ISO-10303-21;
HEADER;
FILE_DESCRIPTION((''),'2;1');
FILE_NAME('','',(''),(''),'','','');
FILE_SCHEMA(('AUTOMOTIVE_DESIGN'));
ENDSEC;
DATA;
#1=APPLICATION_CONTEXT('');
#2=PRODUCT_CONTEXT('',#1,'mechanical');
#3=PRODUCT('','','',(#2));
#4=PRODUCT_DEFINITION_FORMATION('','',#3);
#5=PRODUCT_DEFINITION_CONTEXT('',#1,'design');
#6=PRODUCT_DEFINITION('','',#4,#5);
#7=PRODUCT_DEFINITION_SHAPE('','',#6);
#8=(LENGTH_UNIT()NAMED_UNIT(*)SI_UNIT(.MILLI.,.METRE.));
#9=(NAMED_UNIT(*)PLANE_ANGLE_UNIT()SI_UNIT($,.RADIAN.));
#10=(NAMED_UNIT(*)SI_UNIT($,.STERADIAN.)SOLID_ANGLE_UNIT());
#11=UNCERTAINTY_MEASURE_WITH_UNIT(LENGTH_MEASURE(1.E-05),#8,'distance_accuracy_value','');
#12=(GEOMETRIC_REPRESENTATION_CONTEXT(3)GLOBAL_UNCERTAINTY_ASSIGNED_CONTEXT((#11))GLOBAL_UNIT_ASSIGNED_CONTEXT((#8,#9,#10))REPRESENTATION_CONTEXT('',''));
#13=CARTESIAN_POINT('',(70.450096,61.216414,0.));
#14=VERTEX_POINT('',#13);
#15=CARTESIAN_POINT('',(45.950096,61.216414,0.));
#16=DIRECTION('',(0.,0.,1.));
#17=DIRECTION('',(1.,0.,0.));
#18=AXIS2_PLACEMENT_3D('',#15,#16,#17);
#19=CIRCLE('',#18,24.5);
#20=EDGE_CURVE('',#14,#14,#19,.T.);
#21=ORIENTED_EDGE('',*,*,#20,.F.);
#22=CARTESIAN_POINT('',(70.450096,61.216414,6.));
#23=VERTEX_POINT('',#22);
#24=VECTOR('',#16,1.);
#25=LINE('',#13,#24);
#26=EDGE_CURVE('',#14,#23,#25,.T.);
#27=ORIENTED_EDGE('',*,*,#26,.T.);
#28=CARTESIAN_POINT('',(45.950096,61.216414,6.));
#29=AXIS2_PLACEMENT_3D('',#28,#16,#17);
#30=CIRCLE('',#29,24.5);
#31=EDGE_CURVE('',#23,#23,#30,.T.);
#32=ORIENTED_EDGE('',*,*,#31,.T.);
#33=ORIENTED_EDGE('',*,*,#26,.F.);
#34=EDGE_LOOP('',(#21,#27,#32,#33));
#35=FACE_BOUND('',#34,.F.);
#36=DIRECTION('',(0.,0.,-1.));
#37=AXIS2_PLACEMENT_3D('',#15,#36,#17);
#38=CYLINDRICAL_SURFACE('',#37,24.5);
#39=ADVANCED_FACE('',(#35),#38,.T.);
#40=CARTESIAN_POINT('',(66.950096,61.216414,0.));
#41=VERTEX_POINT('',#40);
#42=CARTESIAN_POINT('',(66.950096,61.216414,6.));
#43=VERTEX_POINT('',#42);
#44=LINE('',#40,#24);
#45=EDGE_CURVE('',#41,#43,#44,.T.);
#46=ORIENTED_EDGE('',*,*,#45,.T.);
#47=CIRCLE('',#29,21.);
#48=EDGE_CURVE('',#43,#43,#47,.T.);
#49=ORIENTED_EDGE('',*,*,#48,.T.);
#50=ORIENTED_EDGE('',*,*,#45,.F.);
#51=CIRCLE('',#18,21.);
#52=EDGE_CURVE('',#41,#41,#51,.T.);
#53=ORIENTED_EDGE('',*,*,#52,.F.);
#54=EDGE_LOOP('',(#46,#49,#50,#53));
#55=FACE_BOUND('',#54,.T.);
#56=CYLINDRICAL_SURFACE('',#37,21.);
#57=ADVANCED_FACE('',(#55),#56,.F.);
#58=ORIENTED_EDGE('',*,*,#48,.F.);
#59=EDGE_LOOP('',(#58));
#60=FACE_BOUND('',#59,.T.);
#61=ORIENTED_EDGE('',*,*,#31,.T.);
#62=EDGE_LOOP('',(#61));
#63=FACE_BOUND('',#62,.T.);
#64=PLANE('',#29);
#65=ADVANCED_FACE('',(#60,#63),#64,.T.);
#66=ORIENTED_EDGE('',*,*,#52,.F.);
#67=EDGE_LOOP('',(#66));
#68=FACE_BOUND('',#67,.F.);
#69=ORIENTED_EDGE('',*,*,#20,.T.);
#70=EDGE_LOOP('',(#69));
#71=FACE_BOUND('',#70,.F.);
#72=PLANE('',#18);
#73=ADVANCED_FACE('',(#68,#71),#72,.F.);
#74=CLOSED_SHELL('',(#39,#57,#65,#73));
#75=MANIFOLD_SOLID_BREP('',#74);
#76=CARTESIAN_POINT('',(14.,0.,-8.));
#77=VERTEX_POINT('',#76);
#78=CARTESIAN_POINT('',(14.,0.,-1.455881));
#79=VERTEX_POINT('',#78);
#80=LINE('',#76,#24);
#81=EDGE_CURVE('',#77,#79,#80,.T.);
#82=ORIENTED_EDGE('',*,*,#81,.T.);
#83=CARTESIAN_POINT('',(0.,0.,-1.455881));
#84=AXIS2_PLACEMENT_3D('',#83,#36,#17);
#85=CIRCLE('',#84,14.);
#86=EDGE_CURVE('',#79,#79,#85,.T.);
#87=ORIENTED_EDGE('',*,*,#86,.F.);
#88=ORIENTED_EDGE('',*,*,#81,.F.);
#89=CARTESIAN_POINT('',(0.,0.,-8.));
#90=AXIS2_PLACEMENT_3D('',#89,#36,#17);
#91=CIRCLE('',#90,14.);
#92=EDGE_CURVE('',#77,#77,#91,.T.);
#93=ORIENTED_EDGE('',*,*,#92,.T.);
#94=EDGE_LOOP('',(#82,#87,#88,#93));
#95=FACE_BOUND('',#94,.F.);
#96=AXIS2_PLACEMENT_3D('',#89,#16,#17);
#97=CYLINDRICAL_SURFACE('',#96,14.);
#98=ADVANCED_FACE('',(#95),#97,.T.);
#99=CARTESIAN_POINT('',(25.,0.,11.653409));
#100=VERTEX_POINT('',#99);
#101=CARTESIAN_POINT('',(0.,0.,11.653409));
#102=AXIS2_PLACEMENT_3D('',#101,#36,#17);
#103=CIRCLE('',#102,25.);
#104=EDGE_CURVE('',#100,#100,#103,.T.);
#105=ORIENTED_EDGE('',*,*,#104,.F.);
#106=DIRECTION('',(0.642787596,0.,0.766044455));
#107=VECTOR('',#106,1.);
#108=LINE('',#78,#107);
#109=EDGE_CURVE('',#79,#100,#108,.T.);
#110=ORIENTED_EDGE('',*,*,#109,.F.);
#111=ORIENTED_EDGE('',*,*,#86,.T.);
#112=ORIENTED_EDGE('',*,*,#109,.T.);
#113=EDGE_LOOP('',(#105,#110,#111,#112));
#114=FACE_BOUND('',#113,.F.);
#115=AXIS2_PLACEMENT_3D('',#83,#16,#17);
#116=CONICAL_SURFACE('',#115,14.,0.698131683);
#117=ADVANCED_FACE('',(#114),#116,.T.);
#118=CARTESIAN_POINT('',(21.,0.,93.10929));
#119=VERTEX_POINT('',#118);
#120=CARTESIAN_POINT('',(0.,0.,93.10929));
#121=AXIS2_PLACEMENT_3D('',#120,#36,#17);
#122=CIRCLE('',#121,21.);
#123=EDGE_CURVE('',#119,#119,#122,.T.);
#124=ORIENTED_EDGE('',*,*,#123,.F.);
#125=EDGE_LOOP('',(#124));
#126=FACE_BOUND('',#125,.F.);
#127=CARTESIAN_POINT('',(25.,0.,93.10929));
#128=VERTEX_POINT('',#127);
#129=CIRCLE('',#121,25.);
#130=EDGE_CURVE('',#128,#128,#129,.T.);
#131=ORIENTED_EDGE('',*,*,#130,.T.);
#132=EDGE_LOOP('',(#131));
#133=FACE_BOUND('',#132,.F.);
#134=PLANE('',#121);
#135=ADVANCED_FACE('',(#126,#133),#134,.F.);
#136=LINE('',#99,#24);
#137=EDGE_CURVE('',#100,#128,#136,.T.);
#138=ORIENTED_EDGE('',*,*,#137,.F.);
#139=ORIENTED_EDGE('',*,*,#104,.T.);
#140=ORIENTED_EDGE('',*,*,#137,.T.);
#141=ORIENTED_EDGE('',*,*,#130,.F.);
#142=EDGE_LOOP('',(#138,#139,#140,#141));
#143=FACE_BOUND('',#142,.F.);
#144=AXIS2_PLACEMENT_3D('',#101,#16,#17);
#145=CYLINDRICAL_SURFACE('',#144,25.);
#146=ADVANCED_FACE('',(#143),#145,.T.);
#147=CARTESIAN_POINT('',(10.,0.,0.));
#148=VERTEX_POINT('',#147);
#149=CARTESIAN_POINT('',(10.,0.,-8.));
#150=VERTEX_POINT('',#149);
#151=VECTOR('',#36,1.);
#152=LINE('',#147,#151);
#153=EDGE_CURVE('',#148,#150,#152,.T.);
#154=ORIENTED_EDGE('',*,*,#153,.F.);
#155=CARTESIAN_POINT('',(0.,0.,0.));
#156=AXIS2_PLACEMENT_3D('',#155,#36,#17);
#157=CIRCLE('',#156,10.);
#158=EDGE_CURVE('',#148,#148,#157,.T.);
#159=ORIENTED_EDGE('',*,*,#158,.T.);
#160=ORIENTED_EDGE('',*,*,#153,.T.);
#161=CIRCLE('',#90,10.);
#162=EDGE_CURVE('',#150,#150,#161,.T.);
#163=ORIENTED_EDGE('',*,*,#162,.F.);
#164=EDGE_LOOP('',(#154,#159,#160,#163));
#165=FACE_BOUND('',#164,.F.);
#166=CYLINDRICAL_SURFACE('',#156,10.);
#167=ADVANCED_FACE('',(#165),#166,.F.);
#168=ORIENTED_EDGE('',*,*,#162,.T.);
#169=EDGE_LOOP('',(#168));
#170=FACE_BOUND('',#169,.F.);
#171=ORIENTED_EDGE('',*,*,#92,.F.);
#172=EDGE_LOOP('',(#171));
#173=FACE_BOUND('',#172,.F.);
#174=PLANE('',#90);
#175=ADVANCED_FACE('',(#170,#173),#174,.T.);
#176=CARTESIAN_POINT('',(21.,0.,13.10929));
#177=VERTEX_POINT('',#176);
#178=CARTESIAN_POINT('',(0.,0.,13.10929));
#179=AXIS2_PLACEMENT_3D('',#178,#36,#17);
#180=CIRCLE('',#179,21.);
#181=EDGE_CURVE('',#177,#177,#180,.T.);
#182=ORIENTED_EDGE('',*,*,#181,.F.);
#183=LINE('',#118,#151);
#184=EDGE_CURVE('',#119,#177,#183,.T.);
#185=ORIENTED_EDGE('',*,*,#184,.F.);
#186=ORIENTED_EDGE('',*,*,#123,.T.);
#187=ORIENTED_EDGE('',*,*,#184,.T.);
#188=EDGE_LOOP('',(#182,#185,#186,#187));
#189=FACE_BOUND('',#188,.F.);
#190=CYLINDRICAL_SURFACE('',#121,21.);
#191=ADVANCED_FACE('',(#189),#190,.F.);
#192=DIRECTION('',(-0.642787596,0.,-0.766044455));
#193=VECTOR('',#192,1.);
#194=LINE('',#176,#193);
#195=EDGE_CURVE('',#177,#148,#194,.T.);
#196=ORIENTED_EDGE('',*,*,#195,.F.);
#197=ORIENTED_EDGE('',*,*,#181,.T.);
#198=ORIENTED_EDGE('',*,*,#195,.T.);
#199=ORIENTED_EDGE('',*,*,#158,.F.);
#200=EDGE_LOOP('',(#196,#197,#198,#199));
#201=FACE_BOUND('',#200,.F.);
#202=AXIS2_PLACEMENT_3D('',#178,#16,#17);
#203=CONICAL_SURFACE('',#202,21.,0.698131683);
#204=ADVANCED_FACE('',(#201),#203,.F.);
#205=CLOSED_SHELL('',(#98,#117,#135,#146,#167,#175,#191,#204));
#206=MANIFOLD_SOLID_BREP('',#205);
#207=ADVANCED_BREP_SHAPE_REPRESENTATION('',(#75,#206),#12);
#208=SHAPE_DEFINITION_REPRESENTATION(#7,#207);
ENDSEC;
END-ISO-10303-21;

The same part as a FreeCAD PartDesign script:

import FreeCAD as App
import Part
import Sketcher

V = App.Vector
Q = App.Units.Quantity


def add_polygon(sketch, points):
    """Adds a closed chain of lines whose ends are joined by coincident constraints."""
    first, n = sketch.GeometryCount, len(points)
    for a, b in zip(points, points[1:] + points[:1]):
        sketch.addGeometry(Part.LineSegment(App.Vector(*a, 0), App.Vector(*b, 0)), False)
    for i in range(n):
        sketch.addConstraint(Sketcher.Constraint("Coincident", first + i, 2, first + (i + 1) % n, 1))

doc = App.newDocument("Part")
params = doc.addObject("Spreadsheet::Sheet", "Params")
for row, (alias, value) in enumerate([
    ("sketch1_width", "4 mm"),
    ("sketch1_height", "8 mm"),
    ("sketch1_height2", "80 mm"),
    ("revolution_angle", "360 deg"),
    ("sketch2_diameter", "49 mm"),
    ("sketch2_diameter2", "42 mm"),
    ("pad1_length", "6 mm"),
], start=1):
    params.set(f"A{row}", alias)
    params.set(f"B{row}", "=" + value)
    params.setAlias(f"B{row}", alias)

body = doc.addObject("PartDesign::Body", "Body")

# Sketch on XZ plane
sketch1 = body.newObject("Sketcher::SketchObject", "Sketch")
sketch1.AttachmentSupport = (doc.getObject("XZ_Plane"), [""])
sketch1.MapMode = "FlatFace"
add_polygon(sketch1, [(21, 13.1), (10, 0), (10, -8), (14, -8), (14, -1.5), (25, 11.7), (25, 93.1), (21, 93.1)])  # lines 0-7
sketch1.addConstraint(Sketcher.Constraint("Vertical", 1))
sketch1.addConstraint(Sketcher.Constraint("Horizontal", 2))
sketch1.addConstraint(Sketcher.Constraint("Vertical", 3))
sketch1.addConstraint(Sketcher.Constraint("Vertical", 5))
sketch1.addConstraint(Sketcher.Constraint("Horizontal", 6))
sketch1.addConstraint(Sketcher.Constraint("Vertical", 7))
sketch1.addConstraint(Sketcher.Constraint("PointOnObject", 0, 2, -1))
sketch1.addConstraint(Sketcher.Constraint("Parallel", 0, 4))
sketch1.addConstraint(Sketcher.Constraint("Equal", 2, 6))
sketch1.addConstraint(Sketcher.Constraint("DistanceX", 2, 1, 2, 2, Q("4 mm")))
sketch1.addConstraint(Sketcher.Constraint("DistanceY", 1, 2, 1, 1, Q("8 mm")))
sketch1.addConstraint(Sketcher.Constraint("DistanceY", 7, 2, 7, 1, Q("80 mm")))
sketch1.addConstraint(Sketcher.Constraint("Angle", 0, Q("-129.999999 deg")))
sketch1.addConstraint(Sketcher.Constraint("DistanceX", -1, 1, 0, 2, Q("10 mm")))
sketch1.addConstraint(Sketcher.Constraint("DistanceX", -1, 1, 4, 2, Q("25 mm")))
sketch1.addConstraint(Sketcher.Constraint("DistanceY", 3, 1, 3, 2, Q("6.544119 mm")))
sketch1.setExpression("Constraints[17]", "Params.sketch1_width")
sketch1.setExpression("Constraints[18]", "Params.sketch1_height")
sketch1.setExpression("Constraints[19]", "Params.sketch1_height2")
revolution = body.newObject("PartDesign::Revolution", "Revolution")
revolution.Profile = sketch1
revolution.ReferenceAxis = (sketch1, ["V_Axis"])
revolution.setExpression("Angle", "Params.revolution_angle")
body2 = doc.addObject("PartDesign::Body", "Body001")

# Sketch on XY plane
sketch2 = body2.newObject("Sketcher::SketchObject", "Sketch001")
sketch2.AttachmentSupport = (doc.getObject("XY_Plane001"), [""])
sketch2.MapMode = "FlatFace"
sketch2.addGeometry(Part.Circle(V(46, 61, 0), V(0, 0, 1), 24), False)
sketch2.addGeometry(Part.Circle(V(46, 61, 0), V(0, 0, 1), 21), False)
sketch2.addConstraint(Sketcher.Constraint("Coincident", 1, 3, 0, 3))
sketch2.addConstraint(Sketcher.Constraint("Diameter", 0, Q("49 mm")))
sketch2.addConstraint(Sketcher.Constraint("Diameter", 1, Q("42 mm")))
sketch2.addConstraint(Sketcher.Constraint("DistanceX", -1, 1, 0, 3, Q("45.950096 mm")))
sketch2.addConstraint(Sketcher.Constraint("DistanceY", -1, 1, 0, 3, Q("61.216414 mm")))
sketch2.setExpression("Constraints[1]", "Params.sketch2_diameter")
sketch2.setExpression("Constraints[2]", "Params.sketch2_diameter2")
pad1 = body2.newObject("PartDesign::Pad", "Pad")
pad1.Profile = sketch2
pad1.setExpression("Length", "Params.pad1_length")

doc.recompute()
